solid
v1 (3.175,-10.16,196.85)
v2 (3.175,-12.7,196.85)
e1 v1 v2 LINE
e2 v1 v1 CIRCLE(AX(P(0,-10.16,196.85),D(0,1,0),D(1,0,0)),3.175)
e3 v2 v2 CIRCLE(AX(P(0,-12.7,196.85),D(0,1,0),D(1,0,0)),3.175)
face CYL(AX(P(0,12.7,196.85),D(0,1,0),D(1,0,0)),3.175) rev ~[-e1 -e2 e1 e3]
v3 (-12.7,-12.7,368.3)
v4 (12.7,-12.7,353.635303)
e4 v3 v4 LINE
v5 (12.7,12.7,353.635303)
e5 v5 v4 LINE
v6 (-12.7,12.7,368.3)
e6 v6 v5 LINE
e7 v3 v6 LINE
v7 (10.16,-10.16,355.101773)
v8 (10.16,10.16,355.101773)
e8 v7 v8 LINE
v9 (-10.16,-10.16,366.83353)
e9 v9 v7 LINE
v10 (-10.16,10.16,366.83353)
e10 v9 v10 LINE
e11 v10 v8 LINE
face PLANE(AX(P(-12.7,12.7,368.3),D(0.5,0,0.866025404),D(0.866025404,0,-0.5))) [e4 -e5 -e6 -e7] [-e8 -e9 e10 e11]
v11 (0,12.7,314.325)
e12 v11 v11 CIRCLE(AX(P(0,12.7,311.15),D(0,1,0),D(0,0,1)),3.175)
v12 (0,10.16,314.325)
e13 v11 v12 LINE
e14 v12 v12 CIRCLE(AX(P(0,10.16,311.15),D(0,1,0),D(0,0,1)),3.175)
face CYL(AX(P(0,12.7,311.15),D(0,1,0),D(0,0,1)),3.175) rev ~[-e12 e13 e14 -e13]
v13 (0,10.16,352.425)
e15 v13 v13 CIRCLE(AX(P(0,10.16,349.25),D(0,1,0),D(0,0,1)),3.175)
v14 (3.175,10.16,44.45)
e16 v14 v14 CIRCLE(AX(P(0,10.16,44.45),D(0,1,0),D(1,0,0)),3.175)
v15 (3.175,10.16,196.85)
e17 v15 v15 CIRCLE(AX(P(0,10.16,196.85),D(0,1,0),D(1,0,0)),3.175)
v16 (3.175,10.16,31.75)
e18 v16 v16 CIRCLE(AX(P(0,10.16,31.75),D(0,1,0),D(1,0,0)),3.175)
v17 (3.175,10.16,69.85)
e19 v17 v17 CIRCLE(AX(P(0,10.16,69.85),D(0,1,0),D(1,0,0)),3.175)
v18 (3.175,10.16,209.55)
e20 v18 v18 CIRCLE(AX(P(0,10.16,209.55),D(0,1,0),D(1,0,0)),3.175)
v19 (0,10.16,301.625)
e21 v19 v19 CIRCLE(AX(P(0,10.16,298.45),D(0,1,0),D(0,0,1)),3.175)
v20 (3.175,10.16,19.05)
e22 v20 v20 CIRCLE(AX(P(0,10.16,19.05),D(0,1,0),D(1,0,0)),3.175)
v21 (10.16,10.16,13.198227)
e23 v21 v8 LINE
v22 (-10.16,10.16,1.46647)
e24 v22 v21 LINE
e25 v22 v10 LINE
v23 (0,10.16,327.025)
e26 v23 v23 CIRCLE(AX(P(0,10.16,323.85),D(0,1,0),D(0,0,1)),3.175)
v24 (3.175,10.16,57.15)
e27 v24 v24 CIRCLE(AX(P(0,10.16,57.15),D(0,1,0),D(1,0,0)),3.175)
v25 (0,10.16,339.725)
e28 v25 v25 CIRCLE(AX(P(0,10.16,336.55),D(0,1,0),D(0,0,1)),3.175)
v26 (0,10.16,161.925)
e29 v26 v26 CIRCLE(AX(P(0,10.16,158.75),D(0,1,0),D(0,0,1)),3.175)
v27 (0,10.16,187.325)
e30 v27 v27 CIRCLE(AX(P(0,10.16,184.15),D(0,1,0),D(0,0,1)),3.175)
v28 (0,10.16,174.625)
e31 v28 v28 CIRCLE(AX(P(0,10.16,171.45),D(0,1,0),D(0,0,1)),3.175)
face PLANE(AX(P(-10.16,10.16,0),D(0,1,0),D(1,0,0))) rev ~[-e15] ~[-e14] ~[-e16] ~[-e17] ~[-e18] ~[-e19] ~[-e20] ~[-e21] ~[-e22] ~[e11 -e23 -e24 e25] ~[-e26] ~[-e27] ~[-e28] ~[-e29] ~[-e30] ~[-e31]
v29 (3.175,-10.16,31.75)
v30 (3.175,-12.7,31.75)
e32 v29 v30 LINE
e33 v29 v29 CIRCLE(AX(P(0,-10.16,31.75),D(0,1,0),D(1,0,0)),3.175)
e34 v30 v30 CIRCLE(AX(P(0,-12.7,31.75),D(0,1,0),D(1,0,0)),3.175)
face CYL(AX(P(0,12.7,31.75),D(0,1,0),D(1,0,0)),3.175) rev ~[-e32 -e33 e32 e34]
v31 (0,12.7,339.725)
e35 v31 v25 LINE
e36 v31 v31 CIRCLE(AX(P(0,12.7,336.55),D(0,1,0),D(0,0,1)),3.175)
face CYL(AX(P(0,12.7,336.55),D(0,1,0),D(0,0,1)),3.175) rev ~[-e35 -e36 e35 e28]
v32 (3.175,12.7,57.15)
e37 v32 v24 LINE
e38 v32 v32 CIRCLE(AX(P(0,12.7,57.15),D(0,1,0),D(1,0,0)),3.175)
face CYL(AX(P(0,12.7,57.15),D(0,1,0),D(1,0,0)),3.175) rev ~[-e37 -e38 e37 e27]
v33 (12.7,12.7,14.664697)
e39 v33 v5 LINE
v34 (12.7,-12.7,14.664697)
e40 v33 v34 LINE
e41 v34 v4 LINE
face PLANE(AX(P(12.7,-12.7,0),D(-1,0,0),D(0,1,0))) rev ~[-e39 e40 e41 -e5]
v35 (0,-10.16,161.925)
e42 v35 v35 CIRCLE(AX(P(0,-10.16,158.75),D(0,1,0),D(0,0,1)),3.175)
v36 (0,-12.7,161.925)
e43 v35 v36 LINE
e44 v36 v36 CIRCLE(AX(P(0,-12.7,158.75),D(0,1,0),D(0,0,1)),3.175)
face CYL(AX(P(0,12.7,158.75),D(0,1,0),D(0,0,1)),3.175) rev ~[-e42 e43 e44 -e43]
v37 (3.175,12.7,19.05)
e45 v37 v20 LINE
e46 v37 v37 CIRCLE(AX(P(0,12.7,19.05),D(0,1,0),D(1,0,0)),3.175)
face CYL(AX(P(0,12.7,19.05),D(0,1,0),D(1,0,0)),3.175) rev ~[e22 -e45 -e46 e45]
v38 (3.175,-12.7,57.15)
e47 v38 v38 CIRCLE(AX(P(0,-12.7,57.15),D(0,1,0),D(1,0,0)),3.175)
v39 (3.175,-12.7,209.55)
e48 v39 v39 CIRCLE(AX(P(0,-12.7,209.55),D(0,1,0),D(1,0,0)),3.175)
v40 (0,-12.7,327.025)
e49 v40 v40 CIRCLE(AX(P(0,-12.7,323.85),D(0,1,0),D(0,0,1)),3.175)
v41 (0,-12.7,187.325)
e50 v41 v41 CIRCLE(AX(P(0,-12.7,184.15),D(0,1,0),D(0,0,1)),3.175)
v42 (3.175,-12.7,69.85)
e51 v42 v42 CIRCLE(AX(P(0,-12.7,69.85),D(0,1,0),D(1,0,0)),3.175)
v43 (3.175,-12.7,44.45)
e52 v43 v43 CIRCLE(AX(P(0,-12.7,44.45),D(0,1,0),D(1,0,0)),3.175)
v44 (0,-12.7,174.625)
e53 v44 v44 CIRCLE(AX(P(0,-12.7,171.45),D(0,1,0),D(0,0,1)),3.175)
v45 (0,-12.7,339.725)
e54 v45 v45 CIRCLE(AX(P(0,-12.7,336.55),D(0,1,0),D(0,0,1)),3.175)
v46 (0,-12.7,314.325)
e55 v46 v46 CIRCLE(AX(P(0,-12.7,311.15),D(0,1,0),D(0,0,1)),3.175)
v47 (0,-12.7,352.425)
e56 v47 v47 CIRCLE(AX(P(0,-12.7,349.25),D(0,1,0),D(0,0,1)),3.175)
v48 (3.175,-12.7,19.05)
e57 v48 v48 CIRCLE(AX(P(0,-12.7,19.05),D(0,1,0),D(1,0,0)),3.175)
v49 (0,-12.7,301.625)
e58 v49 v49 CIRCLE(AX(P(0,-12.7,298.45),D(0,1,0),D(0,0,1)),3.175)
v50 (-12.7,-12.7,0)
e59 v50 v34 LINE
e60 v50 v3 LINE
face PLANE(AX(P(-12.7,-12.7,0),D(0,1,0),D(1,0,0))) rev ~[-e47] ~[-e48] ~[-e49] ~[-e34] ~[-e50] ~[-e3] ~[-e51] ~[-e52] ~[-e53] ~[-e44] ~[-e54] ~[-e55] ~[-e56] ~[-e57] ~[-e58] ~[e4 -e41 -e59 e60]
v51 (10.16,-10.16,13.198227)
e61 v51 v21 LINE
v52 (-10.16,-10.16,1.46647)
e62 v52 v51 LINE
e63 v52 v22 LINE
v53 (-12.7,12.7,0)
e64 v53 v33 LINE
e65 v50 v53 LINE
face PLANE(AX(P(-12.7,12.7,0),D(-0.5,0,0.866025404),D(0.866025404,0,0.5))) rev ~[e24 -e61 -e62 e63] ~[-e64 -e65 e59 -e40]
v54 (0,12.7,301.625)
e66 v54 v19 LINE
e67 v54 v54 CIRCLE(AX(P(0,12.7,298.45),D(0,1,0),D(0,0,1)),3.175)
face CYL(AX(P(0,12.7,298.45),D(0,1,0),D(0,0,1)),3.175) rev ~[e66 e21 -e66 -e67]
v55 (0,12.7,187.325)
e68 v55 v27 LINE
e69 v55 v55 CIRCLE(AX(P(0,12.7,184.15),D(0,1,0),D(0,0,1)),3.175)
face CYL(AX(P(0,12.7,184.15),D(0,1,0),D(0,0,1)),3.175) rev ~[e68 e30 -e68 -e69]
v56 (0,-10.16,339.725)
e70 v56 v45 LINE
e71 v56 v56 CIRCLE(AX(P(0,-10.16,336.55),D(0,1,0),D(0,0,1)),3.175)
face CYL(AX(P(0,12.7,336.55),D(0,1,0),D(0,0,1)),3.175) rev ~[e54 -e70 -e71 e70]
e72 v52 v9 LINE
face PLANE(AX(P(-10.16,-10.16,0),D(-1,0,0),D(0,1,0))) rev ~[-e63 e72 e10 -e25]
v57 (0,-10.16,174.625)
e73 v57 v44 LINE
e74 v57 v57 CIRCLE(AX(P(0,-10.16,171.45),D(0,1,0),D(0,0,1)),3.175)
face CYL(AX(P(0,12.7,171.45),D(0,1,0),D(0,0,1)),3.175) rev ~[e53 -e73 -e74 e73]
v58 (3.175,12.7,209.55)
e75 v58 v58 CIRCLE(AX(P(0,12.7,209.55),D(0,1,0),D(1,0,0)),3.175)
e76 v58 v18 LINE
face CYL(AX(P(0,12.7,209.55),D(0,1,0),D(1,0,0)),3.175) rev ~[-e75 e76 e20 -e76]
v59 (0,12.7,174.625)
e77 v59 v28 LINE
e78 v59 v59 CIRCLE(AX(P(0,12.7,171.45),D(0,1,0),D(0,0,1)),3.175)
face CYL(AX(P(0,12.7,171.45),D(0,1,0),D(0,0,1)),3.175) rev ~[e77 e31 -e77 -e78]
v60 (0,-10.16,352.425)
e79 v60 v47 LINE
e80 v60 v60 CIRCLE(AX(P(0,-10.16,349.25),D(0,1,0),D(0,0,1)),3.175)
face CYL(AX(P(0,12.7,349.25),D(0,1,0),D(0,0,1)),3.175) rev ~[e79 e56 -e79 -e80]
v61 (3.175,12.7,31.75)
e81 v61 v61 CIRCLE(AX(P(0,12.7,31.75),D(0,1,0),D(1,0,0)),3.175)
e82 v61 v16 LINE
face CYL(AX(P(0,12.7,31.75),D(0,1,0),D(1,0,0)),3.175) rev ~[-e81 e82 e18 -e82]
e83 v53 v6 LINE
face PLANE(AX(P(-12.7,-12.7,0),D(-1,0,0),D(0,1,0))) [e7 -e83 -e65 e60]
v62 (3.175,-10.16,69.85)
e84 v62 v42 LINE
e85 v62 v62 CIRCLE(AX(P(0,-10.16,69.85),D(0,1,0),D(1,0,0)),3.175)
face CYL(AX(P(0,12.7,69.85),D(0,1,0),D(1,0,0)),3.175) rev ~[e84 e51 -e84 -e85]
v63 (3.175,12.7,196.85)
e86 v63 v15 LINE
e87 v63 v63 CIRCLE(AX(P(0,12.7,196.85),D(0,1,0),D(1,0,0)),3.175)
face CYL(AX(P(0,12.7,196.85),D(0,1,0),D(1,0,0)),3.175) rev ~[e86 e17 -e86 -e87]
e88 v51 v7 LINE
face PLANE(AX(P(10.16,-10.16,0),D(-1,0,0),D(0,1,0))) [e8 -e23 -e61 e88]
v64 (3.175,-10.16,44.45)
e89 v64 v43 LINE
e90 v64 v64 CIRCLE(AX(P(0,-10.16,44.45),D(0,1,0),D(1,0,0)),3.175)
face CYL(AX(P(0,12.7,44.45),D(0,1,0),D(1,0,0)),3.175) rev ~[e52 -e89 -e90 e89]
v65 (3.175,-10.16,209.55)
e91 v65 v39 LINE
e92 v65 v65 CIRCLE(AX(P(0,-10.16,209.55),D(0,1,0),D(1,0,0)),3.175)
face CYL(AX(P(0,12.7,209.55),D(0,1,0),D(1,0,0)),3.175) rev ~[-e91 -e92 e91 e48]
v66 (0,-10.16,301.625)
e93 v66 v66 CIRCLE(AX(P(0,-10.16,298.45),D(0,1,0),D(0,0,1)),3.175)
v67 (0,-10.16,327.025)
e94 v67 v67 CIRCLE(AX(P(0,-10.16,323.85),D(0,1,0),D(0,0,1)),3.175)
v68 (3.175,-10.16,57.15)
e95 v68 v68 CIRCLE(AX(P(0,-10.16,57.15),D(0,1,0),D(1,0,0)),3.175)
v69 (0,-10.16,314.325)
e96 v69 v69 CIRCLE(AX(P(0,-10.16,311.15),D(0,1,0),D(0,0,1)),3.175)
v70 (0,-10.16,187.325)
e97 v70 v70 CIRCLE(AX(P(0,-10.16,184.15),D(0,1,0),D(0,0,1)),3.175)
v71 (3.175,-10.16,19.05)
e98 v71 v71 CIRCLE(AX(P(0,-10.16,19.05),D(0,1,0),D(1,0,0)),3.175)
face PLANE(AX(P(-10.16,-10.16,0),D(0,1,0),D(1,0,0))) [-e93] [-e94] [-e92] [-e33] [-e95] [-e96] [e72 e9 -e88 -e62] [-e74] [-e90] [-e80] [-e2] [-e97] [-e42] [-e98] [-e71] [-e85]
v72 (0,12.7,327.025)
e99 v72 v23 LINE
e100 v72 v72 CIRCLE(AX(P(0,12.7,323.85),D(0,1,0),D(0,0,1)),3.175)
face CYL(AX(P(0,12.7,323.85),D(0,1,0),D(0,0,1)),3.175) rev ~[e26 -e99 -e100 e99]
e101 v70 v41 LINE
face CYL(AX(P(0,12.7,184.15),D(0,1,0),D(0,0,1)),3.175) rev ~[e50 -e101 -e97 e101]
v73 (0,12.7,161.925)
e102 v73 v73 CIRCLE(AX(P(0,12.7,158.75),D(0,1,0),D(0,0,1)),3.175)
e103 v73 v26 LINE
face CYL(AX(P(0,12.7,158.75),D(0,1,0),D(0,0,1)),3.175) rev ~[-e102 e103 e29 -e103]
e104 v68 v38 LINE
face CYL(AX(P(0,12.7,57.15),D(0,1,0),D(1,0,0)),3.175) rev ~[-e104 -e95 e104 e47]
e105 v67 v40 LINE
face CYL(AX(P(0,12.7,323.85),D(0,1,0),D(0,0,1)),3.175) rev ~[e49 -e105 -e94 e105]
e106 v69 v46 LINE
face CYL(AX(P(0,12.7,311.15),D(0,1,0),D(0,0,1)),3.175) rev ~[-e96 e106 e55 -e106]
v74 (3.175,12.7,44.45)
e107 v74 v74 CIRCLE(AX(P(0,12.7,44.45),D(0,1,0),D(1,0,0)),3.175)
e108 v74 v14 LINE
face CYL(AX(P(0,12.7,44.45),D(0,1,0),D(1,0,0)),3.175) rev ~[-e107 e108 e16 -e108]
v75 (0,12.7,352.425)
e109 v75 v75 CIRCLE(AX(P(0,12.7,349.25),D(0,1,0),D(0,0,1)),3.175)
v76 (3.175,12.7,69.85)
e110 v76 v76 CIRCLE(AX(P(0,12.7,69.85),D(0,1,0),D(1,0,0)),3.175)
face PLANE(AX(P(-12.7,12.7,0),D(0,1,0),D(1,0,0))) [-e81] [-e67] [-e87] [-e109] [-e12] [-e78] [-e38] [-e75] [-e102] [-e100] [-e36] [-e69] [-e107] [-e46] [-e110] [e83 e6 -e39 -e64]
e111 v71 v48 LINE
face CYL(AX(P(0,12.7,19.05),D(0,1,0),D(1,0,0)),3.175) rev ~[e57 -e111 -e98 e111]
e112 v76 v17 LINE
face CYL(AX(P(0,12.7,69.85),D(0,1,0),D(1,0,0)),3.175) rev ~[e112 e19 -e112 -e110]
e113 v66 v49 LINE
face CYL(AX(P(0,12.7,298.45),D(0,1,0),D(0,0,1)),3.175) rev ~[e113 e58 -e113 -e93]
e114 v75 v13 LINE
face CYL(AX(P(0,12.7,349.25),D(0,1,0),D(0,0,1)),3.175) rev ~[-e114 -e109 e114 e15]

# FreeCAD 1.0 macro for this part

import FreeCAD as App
import Part
import Sketcher
from FreeCAD import Vector
Q = App.Units.Quantity

doc = App.newDocument("Part")
body = doc.addObject("PartDesign::Body", "Body")

sketch1 = body.newObject("Sketcher::SketchObject", "Sketch")
sketch1.AttachmentSupport = (doc.getObject("XY_Plane"), [""])
sketch1.MapMode = "FlatFace"
sketch1.addGeometry([
    Part.LineSegment(Vector(-12.7, 12.7, 0), Vector(-12.7, -12.7, 0)),
    Part.LineSegment(Vector(-12.7, -12.7, 0), Vector(12.7, -12.7, 0)),
    Part.LineSegment(Vector(12.7, -12.7, 0), Vector(12.7, 12.7, 0)),
    Part.LineSegment(Vector(12.7, 12.7, 0), Vector(-12.7, 12.7, 0)),
    Part.LineSegment(Vector(10.16, -10.16, 0), Vector(-10.16, -10.16, 0)),
    Part.LineSegment(Vector(-10.16, -10.16, 0), Vector(-10.16, 10.16, 0)),
    Part.LineSegment(Vector(-10.16, 10.16, 0), Vector(10.16, 10.16, 0)),
    Part.LineSegment(Vector(10.16, 10.16, 0), Vector(10.16, -10.16, 0)),
], False)
sketch1.addConstraint([
    Sketcher.Constraint("Coincident", 0, 2, 1, 1),
    Sketcher.Constraint("Coincident", 1, 2, 2, 1),
    Sketcher.Constraint("Coincident", 2, 2, 3, 1),
    Sketcher.Constraint("Coincident", 3, 2, 0, 1),
    Sketcher.Constraint("Coincident", 4, 2, 5, 1),
    Sketcher.Constraint("Coincident", 5, 2, 6, 1),
    Sketcher.Constraint("Coincident", 6, 2, 7, 1),
    Sketcher.Constraint("Coincident", 7, 2, 4, 1),
    Sketcher.Constraint("Vertical", 0),
    Sketcher.Constraint("Horizontal", 1),
    Sketcher.Constraint("Vertical", 2),
    Sketcher.Constraint("Horizontal", 3),
    Sketcher.Constraint("Horizontal", 4),
    Sketcher.Constraint("Vertical", 5),
    Sketcher.Constraint("Horizontal", 6),
    Sketcher.Constraint("Vertical", 7),
    Sketcher.Constraint("Symmetric", 0, 2, 2, 2, -1, 1),
    Sketcher.Constraint("Symmetric", 4, 2, 6, 2, -1, 1),
    Sketcher.Constraint("Equal", 3, 0),
    Sketcher.Constraint("Equal", 6, 5),
    Sketcher.Constraint("DistanceX", 1, 1, 1, 2, Q("1 in")),
    Sketcher.Constraint("DistanceX", 4, 2, 4, 1, Q("0.8 in")),
])
pad1 = body.newObject("PartDesign::Pad", "Pad")
pad1.Profile = sketch1
pad1.Length = Q("14.5 in")

sketch2 = body.newObject("Sketcher::SketchObject", "Sketch001")
sketch2.AttachmentSupport = (doc.getObject("XZ_Plane"), [""])
sketch2.MapMode = "FlatFace"
sketch2.AttachmentOffset = App.Placement(Vector(0, 0, -0.5 * 25.4), App.Rotation())
sketch2.addGeometry([
    Part.LineSegment(Vector(12.7, 353.635303, 0), Vector(-12.7, 368.3, 0)),
    Part.LineSegment(Vector(-12.7, 368.3, 0), Vector(12.7, 368.3, 0)),
    Part.LineSegment(Vector(12.7, 368.3, 0), Vector(12.7, 353.635303, 0)),
    Part.LineSegment(Vector(12.7, 0, 0), Vector(-12.7, 0, 0)),
    Part.LineSegment(Vector(-12.7, 0, 0), Vector(12.7, 14.664697, 0)),
    Part.LineSegment(Vector(12.7, 14.664697, 0), Vector(12.7, 0, 0)),
], False)
sketch2.addConstraint([
    Sketcher.Constraint("Coincident", 0, 2, 1, 1),
    Sketcher.Constraint("Coincident", 1, 2, 2, 1),
    Sketcher.Constraint("Coincident", 2, 2, 0, 1),
    Sketcher.Constraint("Coincident", 3, 2, 4, 1),
    Sketcher.Constraint("Coincident", 4, 2, 5, 1),
    Sketcher.Constraint("Coincident", 5, 2, 3, 1),
    Sketcher.Constraint("Horizontal", 1),
    Sketcher.Constraint("Vertical", 2),
    Sketcher.Constraint("Horizontal", 3),
    Sketcher.Constraint("Vertical", 5),
    Sketcher.Constraint("Symmetric", 3, 2, 5, 2, -1, 1),
    Sketcher.Constraint("Vertical", 0, 2, 3, 2),
    Sketcher.Constraint("Vertical", 2, 2, 4, 2),
    Sketcher.Constraint("Equal", 2, 5),
    Sketcher.Constraint("DistanceX", 1, 1, 1, 2, Q("1 in")),
    Sketcher.Constraint("Angle", 0, Q("150 deg")),
    Sketcher.Constraint("DistanceY", -1, 1, 0, 2, Q("14.5 in")),
])
pocket1 = body.newObject("PartDesign::Pocket", "Pocket")
pocket1.Profile = sketch2
pocket1.Type = "ThroughAll"
pocket1.Reversed = True

sketch3 = body.newObject("Sketcher::SketchObject", "Sketch002")
sketch3.AttachmentSupport = (doc.getObject("XZ_Plane"), [""])
sketch3.MapMode = "FlatFace"
sketch3.AttachmentOffset = App.Placement(Vector(0, 0, -0.5 * 25.4), App.Rotation())
sketch3.addGeometry([
    Part.Circle(Vector(0, 184.15, 0), Vector(0, 0, 1), 3.175),
    Part.Circle(Vector(0, 171.45, 0), Vector(0, 0, 1), 3.175),
    Part.Circle(Vector(0, 158.75, 0), Vector(0, 0, 1), 3.175),
    Part.Circle(Vector(0, 209.55, 0), Vector(0, 0, 1), 3.175),
    Part.Circle(Vector(0, 196.85, 0), Vector(0, 0, 1), 3.175),
    Part.Circle(Vector(0, 349.25, 0), Vector(0, 0, 1), 3.175),
    Part.Circle(Vector(0, 336.55, 0), Vector(0, 0, 1), 3.175),
    Part.Circle(Vector(0, 323.85, 0), Vector(0, 0, 1), 3.175),
    Part.Circle(Vector(0, 311.15, 0), Vector(0, 0, 1), 3.175),
    Part.Circle(Vector(0, 298.45, 0), Vector(0, 0, 1), 3.175),
    Part.Circle(Vector(0, 69.85, 0), Vector(0, 0, 1), 3.175),
    Part.Circle(Vector(0, 57.15, 0), Vector(0, 0, 1), 3.175),
    Part.Circle(Vector(0, 44.45, 0), Vector(0, 0, 1), 3.175),
    Part.Circle(Vector(0, 31.75, 0), Vector(0, 0, 1), 3.175),
    Part.Circle(Vector(0, 19.05, 0), Vector(0, 0, 1), 3.175),
], False)
sketch3.addConstraint([
    Sketcher.Constraint("Equal", 0, 1),
    Sketcher.Constraint("Equal", 1, 2),
    Sketcher.Constraint("Equal", 2, 3),
    Sketcher.Constraint("Equal", 3, 4),
    Sketcher.Constraint("Equal", 4, 5),
    Sketcher.Constraint("Equal", 5, 6),
    Sketcher.Constraint("Equal", 6, 7),
    Sketcher.Constraint("Equal", 7, 8),
    Sketcher.Constraint("Equal", 8, 9),
    Sketcher.Constraint("Equal", 9, 10),
    Sketcher.Constraint("Equal", 10, 11),
    Sketcher.Constraint("Equal", 11, 12),
    Sketcher.Constraint("Equal", 12, 13),
    Sketcher.Constraint("Equal", 13, 14),
    Sketcher.Constraint("PointOnObject", 0, 3, -2),
    Sketcher.Constraint("PointOnObject", 1, 3, -2),
    Sketcher.Constraint("PointOnObject", 2, 3, -2),
    Sketcher.Constraint("PointOnObject", 3, 3, -2),
    Sketcher.Constraint("PointOnObject", 4, 3, -2),
    Sketcher.Constraint("PointOnObject", 5, 3, -2),
    Sketcher.Constraint("PointOnObject", 6, 3, -2),
    Sketcher.Constraint("PointOnObject", 7, 3, -2),
    Sketcher.Constraint("PointOnObject", 8, 3, -2),
    Sketcher.Constraint("PointOnObject", 9, 3, -2),
    Sketcher.Constraint("PointOnObject", 10, 3, -2),
    Sketcher.Constraint("PointOnObject", 11, 3, -2),
    Sketcher.Constraint("PointOnObject", 12, 3, -2),
    Sketcher.Constraint("PointOnObject", 13, 3, -2),
    Sketcher.Constraint("PointOnObject", 14, 3, -2),
    Sketcher.Constraint("Diameter", 0, Q("0.25 in")),
    Sketcher.Constraint("DistanceY", 2, 3, 0, 3, Q("1 in")),
    Sketcher.Constraint("DistanceY", 0, 3, 3, 3, Q("1 in")),
    Sketcher.Constraint("DistanceY", 1, 3, 4, 3, Q("1 in")),
    Sketcher.Constraint("DistanceY", 4, 3, 5, 3, Q("6 in")),
    Sketcher.Constraint("DistanceY", 3, 3, 6, 3, Q("5 in")),
    Sketcher.Constraint("DistanceY", 7, 3, 5, 3, Q("1 in")),
    Sketcher.Constraint("DistanceY", 8, 3, 6, 3, Q("1 in")),
    Sketcher.Constraint("DistanceY", 9, 3, 7, 3, Q("1 in")),
    Sketcher.Constraint("DistanceY", 10, 3, 1, 3, Q("4 in")),
    Sketcher.Constraint("DistanceY", 11, 3, 2, 3, Q("4 in")),
    Sketcher.Constraint("DistanceY", 12, 3, 10, 3, Q("1 in")),
    Sketcher.Constraint("DistanceY", 13, 3, 11, 3, Q("1 in")),
    Sketcher.Constraint("DistanceY", 14, 3, 12, 3, Q("1 in")),
    Sketcher.Constraint("DistanceY", 1, 3, 0, 3, Q("0.5 in")),
    Sketcher.Constraint("DistanceY", -1, 1, 0, 3, Q("7.25 in")),
])
pocket2 = body.newObject("PartDesign::Pocket", "Pocket001")
pocket2.Profile = sketch3
pocket2.Type = "ThroughAll"
pocket2.Reversed = True

doc.recompute()
